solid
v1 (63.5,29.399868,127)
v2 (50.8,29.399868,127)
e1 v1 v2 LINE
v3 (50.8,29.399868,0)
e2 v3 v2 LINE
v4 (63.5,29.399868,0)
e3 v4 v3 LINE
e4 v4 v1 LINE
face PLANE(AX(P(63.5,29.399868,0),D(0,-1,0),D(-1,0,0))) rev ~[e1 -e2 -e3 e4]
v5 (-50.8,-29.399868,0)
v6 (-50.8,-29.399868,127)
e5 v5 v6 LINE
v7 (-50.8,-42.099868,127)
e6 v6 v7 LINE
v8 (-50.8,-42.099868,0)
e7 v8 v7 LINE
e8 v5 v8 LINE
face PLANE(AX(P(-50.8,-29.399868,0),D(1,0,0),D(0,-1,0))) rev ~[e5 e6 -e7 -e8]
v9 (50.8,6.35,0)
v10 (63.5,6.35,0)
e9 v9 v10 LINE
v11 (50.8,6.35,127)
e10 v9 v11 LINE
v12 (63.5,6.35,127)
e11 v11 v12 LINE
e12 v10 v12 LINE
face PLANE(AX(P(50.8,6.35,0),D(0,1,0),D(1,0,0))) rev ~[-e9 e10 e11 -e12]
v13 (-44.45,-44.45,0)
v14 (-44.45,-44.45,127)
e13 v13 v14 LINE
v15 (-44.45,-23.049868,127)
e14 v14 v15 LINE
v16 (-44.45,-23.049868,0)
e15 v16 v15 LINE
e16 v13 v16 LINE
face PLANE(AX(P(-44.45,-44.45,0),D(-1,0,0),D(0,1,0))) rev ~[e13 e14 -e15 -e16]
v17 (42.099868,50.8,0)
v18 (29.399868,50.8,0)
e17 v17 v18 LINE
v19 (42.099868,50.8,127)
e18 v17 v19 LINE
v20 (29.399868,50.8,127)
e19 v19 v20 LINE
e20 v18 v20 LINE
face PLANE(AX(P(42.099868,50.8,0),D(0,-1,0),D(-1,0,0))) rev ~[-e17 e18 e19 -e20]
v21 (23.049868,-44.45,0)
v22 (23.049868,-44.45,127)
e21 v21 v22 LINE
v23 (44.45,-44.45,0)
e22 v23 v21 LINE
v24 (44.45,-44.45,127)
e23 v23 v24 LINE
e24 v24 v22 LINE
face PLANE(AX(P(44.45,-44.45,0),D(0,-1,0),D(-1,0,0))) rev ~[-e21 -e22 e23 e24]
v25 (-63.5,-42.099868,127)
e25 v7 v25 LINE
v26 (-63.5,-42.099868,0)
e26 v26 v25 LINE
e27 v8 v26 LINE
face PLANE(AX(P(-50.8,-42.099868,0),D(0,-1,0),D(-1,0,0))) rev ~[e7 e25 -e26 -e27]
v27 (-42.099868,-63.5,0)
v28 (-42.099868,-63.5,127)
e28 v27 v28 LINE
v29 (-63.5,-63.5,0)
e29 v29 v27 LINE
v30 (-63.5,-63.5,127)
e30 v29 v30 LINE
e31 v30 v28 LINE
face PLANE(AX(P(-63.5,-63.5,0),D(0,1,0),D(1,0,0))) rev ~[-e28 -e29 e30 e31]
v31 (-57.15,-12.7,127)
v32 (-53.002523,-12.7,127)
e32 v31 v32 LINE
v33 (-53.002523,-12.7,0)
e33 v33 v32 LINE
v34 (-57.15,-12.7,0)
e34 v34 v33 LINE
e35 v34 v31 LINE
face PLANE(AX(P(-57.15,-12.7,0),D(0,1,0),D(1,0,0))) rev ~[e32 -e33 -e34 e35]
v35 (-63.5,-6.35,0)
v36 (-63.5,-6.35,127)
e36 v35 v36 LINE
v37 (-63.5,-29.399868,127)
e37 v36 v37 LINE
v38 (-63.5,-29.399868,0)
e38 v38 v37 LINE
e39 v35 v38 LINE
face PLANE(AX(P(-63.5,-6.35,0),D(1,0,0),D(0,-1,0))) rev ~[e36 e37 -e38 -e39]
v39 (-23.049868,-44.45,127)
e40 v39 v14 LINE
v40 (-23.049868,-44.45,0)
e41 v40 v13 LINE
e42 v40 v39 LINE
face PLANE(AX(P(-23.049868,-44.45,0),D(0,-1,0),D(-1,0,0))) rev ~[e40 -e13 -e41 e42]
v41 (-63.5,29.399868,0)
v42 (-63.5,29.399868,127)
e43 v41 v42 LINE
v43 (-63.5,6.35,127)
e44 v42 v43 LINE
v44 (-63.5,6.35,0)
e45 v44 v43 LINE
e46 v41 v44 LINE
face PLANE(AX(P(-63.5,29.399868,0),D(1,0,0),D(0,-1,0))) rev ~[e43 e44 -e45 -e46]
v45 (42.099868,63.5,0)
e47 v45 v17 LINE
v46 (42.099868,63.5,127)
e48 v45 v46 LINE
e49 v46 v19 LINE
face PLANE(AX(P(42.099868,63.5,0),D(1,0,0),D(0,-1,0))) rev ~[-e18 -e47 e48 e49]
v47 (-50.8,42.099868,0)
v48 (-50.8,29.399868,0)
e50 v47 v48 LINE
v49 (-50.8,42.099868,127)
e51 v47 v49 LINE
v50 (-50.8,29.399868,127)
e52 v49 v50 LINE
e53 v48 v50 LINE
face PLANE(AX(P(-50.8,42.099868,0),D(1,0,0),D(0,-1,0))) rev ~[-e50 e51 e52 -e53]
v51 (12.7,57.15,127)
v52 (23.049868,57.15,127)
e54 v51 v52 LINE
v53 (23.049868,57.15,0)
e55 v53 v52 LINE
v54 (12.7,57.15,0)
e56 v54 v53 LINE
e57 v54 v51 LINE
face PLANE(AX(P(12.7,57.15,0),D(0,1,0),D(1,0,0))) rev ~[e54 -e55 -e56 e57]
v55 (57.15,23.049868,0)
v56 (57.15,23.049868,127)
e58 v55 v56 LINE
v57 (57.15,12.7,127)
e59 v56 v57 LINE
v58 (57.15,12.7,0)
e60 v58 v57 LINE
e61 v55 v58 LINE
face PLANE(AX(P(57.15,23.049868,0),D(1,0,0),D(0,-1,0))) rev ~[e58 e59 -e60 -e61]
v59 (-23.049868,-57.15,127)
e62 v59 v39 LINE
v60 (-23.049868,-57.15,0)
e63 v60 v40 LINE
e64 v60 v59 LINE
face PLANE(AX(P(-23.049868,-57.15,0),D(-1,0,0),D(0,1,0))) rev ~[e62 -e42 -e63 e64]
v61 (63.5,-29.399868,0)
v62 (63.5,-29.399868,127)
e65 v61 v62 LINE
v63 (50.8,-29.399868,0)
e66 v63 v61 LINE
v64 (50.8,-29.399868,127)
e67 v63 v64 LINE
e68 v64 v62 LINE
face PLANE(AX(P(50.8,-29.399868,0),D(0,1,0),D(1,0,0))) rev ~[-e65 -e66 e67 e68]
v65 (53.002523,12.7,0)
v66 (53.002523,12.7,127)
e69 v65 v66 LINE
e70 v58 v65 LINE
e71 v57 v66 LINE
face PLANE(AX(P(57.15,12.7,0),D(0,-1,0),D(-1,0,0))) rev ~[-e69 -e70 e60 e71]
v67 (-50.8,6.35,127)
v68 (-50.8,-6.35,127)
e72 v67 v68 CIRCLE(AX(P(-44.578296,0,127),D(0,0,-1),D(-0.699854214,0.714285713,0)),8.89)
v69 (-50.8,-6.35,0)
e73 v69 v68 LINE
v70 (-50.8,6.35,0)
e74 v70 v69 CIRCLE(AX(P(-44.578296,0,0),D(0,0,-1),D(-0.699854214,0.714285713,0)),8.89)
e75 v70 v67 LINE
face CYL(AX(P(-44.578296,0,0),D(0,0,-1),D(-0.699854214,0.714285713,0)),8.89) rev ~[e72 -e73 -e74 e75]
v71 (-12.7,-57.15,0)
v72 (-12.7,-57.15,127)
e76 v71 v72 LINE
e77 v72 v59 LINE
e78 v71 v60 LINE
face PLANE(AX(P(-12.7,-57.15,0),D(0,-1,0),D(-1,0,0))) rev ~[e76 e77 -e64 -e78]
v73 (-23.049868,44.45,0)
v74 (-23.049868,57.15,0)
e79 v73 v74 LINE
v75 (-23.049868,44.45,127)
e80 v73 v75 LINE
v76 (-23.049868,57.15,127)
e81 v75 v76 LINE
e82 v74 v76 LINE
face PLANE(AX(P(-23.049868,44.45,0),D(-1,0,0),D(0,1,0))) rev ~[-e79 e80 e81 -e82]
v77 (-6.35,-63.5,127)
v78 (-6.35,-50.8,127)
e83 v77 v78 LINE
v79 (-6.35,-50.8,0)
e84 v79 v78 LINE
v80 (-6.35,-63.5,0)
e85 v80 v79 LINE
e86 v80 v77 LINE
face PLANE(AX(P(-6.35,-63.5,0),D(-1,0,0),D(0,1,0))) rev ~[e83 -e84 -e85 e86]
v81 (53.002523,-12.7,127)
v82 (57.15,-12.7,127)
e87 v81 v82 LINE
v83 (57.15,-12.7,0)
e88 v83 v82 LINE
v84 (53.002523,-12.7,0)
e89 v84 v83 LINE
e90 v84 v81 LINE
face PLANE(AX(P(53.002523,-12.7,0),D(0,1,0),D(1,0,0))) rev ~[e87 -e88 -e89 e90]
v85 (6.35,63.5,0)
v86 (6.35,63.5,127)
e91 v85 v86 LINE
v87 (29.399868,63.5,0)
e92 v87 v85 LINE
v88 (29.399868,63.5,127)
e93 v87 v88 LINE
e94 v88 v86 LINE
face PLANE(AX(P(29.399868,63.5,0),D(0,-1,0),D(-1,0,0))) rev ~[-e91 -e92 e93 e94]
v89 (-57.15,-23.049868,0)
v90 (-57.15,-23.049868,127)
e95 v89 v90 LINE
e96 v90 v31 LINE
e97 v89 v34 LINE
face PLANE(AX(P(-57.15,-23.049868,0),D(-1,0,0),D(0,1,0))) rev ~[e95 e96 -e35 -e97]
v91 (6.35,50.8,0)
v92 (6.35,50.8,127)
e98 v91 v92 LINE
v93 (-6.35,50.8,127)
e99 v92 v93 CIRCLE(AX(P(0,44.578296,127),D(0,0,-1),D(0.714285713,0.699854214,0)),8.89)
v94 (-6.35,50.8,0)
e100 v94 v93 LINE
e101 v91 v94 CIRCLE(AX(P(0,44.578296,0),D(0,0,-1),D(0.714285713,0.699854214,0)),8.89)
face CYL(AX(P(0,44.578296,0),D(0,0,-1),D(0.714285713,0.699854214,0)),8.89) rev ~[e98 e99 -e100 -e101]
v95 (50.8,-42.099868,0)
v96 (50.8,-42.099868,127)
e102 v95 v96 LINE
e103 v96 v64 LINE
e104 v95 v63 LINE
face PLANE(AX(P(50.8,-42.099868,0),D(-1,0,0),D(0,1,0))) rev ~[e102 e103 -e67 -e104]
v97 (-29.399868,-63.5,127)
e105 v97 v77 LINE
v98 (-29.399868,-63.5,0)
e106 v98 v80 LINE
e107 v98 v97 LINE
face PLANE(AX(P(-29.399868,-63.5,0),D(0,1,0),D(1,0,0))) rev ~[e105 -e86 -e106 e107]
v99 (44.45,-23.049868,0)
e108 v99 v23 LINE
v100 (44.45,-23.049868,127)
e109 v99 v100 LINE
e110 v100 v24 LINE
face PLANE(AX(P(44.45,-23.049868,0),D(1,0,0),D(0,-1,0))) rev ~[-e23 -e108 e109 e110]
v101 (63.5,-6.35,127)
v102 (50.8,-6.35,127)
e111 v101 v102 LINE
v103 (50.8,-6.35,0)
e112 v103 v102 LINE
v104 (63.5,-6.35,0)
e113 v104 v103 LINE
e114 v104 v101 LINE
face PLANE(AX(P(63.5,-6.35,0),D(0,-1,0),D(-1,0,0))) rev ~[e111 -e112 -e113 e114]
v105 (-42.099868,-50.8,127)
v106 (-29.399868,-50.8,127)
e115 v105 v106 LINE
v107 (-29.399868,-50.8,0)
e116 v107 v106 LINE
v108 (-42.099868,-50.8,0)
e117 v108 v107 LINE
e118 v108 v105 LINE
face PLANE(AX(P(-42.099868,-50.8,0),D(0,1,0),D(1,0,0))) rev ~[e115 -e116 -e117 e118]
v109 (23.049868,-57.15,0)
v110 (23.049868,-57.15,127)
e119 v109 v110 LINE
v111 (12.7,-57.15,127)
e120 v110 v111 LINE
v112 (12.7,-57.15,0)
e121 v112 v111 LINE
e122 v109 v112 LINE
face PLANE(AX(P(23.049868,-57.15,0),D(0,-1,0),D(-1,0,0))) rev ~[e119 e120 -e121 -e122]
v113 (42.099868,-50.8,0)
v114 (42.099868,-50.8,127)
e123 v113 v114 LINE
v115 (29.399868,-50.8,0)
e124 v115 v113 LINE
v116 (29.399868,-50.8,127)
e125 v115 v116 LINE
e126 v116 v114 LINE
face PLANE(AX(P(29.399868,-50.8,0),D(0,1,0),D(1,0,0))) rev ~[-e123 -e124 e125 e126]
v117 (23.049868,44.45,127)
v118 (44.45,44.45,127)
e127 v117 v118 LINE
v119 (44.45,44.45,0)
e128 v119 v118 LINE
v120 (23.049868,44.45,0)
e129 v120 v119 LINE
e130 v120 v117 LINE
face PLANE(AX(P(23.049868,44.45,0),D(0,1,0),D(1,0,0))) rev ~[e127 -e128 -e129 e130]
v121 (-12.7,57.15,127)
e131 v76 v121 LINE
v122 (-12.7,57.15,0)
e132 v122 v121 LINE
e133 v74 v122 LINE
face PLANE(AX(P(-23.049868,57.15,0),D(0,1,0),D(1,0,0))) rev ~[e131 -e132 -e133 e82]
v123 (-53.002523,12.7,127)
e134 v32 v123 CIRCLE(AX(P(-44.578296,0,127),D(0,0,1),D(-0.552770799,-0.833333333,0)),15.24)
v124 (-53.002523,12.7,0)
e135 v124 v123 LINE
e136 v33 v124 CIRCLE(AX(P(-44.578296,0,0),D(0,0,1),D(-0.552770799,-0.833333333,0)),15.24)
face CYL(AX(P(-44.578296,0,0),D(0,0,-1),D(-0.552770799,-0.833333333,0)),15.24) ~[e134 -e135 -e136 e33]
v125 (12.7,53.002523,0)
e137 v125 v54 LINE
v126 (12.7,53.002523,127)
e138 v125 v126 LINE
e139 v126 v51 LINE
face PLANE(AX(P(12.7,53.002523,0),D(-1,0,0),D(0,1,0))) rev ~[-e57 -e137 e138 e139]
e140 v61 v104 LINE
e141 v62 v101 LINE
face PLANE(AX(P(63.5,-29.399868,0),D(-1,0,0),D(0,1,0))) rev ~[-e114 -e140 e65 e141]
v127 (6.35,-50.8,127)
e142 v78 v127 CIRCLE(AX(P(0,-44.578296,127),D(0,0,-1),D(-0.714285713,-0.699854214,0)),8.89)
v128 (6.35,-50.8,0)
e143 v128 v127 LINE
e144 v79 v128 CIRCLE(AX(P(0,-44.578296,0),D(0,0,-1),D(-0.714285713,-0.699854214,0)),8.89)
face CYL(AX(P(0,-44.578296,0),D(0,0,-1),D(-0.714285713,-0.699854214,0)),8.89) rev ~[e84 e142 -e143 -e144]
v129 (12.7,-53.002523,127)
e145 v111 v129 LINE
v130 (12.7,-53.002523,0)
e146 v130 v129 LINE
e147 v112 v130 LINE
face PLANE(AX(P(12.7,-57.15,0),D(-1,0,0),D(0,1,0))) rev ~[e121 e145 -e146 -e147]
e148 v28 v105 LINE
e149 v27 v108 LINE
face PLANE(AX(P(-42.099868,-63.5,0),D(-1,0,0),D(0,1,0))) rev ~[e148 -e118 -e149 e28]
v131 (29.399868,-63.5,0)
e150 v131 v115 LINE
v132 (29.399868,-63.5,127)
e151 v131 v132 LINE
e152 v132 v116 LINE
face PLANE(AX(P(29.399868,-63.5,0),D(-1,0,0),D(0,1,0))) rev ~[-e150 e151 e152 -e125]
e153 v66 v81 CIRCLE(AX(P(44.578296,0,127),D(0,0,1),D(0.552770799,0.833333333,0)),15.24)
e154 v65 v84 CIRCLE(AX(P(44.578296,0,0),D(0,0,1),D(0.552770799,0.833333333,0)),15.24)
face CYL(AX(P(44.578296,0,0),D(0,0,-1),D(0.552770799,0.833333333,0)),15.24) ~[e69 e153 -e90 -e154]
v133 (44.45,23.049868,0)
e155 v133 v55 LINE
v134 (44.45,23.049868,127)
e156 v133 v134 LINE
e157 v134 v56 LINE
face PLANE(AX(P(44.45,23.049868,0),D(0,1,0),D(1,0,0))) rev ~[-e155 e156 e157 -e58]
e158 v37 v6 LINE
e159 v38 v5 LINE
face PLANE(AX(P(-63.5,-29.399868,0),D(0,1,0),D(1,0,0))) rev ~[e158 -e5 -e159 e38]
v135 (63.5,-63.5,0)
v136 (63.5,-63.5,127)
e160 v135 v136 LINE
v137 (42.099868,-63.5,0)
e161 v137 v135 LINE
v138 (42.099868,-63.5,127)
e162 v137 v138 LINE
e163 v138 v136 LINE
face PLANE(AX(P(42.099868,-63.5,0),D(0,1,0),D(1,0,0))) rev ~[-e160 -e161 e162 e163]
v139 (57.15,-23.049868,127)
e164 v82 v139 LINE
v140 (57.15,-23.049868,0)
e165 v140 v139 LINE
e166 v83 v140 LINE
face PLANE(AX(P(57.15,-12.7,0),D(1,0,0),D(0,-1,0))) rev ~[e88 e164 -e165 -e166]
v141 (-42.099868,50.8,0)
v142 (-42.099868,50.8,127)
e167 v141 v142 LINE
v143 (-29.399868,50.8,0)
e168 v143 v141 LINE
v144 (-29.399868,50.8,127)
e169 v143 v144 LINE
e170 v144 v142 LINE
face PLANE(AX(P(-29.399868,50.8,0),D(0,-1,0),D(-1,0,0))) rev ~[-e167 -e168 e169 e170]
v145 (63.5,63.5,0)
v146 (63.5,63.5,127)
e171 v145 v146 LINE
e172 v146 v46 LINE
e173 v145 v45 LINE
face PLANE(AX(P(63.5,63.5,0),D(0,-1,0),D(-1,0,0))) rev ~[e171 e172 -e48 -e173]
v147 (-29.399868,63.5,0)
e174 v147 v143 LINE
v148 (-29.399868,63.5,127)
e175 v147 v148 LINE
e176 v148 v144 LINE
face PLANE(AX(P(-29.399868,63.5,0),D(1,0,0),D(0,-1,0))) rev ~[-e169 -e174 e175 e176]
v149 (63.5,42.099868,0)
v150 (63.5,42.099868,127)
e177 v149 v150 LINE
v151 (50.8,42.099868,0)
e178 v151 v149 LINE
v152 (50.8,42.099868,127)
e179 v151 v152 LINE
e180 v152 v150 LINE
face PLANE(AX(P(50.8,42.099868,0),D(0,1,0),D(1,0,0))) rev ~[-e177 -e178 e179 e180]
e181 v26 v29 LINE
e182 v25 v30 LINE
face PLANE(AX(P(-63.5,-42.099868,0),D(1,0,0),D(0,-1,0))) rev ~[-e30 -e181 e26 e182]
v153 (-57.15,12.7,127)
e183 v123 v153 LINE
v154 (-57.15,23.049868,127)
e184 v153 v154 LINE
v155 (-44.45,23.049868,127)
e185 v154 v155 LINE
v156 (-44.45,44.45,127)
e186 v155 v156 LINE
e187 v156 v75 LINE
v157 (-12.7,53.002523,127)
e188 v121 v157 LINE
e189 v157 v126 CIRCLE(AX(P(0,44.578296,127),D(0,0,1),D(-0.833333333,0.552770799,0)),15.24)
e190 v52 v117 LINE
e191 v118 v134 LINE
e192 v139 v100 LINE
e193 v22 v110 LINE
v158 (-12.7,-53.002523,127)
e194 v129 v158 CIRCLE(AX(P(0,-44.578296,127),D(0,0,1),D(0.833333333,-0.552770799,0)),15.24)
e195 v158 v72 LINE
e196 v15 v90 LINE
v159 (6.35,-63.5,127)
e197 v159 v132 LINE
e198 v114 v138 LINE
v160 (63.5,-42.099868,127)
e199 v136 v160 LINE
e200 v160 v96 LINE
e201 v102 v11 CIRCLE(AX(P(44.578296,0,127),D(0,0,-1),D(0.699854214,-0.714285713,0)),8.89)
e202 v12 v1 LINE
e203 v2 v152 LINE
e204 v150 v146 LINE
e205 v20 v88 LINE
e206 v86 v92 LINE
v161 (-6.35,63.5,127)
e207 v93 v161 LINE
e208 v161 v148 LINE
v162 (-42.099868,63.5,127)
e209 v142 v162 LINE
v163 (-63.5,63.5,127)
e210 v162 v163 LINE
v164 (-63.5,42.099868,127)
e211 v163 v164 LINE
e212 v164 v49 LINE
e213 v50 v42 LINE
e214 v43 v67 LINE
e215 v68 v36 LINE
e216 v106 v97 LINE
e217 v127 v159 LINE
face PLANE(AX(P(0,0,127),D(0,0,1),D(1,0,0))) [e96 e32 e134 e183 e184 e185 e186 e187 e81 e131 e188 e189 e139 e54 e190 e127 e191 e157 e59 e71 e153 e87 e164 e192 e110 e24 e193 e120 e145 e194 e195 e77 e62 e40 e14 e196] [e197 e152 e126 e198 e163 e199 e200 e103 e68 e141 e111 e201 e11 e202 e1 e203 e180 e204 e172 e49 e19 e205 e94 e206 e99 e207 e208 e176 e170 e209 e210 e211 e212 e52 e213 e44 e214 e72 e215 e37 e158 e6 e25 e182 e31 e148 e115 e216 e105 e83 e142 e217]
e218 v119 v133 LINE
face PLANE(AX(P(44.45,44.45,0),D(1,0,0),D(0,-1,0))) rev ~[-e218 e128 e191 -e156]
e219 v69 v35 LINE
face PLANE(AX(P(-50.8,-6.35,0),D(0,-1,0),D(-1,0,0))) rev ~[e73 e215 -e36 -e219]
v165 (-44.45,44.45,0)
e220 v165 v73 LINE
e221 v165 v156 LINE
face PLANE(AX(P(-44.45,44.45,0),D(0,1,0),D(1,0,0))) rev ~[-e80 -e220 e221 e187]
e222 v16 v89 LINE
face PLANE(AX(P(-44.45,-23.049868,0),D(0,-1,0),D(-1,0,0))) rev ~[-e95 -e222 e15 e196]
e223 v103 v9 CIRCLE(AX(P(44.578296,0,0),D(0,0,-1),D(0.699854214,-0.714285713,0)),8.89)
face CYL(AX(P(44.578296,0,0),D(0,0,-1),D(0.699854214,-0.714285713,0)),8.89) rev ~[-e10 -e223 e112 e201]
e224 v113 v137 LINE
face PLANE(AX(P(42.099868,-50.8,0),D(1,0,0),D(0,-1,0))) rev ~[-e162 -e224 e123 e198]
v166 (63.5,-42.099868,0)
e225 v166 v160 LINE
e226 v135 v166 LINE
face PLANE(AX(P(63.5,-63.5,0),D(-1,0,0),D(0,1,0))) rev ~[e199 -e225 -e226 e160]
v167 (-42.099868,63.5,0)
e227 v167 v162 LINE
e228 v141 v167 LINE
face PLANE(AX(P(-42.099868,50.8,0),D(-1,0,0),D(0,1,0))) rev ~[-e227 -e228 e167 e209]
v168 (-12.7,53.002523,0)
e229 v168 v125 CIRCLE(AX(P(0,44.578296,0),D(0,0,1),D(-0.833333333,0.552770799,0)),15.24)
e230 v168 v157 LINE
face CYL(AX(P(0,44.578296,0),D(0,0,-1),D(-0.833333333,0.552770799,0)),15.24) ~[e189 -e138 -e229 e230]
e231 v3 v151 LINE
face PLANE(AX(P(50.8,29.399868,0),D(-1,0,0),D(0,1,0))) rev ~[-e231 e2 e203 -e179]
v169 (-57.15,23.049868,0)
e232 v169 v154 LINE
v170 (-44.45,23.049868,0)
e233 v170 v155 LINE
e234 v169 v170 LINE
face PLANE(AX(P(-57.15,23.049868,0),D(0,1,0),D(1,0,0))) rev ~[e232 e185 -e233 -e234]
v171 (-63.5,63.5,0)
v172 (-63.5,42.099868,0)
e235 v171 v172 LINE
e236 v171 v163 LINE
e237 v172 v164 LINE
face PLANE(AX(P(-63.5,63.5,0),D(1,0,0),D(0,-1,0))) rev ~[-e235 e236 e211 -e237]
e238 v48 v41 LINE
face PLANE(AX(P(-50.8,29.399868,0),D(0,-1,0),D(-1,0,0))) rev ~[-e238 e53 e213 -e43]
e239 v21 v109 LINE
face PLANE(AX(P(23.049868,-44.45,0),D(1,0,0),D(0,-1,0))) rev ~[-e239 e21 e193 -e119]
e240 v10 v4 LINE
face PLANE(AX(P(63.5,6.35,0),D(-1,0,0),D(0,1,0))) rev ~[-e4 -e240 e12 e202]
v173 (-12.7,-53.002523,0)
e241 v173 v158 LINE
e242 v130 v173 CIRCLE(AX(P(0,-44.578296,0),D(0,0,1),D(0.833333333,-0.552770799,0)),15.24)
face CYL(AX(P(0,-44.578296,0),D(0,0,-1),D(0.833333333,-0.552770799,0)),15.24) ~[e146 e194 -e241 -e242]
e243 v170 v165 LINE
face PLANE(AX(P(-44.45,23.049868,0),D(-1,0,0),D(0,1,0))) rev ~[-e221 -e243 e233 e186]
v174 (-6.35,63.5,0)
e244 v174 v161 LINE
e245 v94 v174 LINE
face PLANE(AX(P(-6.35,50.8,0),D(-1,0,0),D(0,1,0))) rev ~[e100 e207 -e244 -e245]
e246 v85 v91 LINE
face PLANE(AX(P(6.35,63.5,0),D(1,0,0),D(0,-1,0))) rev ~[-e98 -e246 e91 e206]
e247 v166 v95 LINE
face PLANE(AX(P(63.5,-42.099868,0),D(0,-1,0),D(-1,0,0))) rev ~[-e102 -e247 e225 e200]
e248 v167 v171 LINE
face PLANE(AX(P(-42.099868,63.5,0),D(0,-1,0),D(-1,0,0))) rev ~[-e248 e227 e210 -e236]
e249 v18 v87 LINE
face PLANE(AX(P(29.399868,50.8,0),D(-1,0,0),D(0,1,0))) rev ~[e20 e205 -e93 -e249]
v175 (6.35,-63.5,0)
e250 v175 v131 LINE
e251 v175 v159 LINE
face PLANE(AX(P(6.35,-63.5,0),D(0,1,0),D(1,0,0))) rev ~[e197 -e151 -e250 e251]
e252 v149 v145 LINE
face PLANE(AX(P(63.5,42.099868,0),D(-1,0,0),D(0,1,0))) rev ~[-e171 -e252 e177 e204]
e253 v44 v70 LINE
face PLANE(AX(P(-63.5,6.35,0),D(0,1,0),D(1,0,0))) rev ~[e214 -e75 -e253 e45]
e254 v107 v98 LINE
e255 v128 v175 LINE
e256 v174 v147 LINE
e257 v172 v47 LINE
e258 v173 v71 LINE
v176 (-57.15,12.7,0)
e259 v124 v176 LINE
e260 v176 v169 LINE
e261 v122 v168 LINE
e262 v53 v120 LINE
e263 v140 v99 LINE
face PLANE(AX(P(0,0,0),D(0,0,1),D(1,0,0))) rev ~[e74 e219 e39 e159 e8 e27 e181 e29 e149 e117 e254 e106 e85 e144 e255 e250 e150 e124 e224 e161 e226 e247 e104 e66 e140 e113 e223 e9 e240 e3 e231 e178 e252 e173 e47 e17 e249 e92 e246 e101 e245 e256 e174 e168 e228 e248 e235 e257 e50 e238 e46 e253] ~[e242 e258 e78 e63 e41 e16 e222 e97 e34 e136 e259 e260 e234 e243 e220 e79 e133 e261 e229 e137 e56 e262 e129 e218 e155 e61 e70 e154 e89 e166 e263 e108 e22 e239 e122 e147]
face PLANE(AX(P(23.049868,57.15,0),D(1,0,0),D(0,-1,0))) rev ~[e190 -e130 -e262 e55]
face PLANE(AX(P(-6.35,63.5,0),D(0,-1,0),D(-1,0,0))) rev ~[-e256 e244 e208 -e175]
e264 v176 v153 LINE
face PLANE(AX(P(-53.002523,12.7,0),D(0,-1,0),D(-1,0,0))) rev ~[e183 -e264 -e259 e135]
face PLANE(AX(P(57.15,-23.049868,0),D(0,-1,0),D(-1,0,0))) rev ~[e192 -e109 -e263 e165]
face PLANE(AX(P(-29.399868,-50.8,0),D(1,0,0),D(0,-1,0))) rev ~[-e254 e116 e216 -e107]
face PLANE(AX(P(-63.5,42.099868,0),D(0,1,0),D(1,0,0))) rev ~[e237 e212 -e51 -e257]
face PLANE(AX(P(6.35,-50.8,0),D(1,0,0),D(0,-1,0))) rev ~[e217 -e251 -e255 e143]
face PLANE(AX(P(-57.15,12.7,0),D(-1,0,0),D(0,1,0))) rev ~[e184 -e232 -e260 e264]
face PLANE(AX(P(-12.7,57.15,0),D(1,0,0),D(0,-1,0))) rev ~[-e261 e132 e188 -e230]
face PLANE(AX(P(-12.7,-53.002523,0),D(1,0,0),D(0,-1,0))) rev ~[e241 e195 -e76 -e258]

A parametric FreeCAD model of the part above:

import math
import FreeCAD as App
import Part
import Sketcher
Q = App.Units.Quantity

doc = App.newDocument("Part")
body = doc.addObject("PartDesign::Body", "Body")

# Sketch on XY plane
sketch1 = body.newObject("Sketcher::SketchObject", "Sketch")
sketch1.AttachmentSupport = (doc.getObject("XY_Plane"), [""])
sketch1.MapMode = "FlatFace"
sketch1.addGeometry(Part.LineSegment(App.Vector(-42.1, 63.5, 0), App.Vector(-63.5, 63.5, 0)), False)
sketch1.addGeometry(Part.LineSegment(App.Vector(-63.5, 63.5, 0), App.Vector(-63.5, 42.1, 0)), False)
sketch1.addGeometry(Part.LineSegment(App.Vector(-63.5, 42.1, 0), App.Vector(-50.8, 42.1, 0)), False)
sketch1.addGeometry(Part.LineSegment(App.Vector(-50.8, 42.1, 0), App.Vector(-50.8, 29.4, 0)), False)
sketch1.addGeometry(Part.LineSegment(App.Vector(-50.8, 29.4, 0), App.Vector(-63.5, 29.4, 0)), False)
sketch1.addGeometry(Part.LineSegment(App.Vector(-63.5, 29.4, 0), App.Vector(-63.5, 6.3, 0)), False)
sketch1.addGeometry(Part.LineSegment(App.Vector(-63.5, 6.3, 0), App.Vector(-50.8, 6.3, 0)), False)
sketch1.addGeometry(Part.ArcOfCircle(Part.Circle(App.Vector(-44.6, 0, 0), App.Vector(0, 0, 1), 8.9), math.radians(-134), math.radians(134)), False)
sketch1.addGeometry(Part.LineSegment(App.Vector(-50.8, -6.3, 0), App.Vector(-63.5, -6.3, 0)), False)
sketch1.addGeometry(Part.LineSegment(App.Vector(-63.5, -6.3, 0), App.Vector(-63.5, -29.4, 0)), False)
sketch1.addGeometry(Part.LineSegment(App.Vector(-63.5, -29.4, 0), App.Vector(-50.8, -29.4, 0)), False)
sketch1.addGeometry(Part.LineSegment(App.Vector(-50.8, -29.4, 0), App.Vector(-50.8, -42.1, 0)), False)
sketch1.addGeometry(Part.LineSegment(App.Vector(-50.8, -42.1, 0), App.Vector(-63.5, -42.1, 0)), False)
sketch1.addGeometry(Part.LineSegment(App.Vector(-63.5, -42.1, 0), App.Vector(-63.5, -63.5, 0)), False)
sketch1.addGeometry(Part.LineSegment(App.Vector(-63.5, -63.5, 0), App.Vector(-42.1, -63.5, 0)), False)
sketch1.addGeometry(Part.LineSegment(App.Vector(-42.1, -63.5, 0), App.Vector(-42.1, -50.8, 0)), False)
sketch1.addGeometry(Part.LineSegment(App.Vector(-42.1, -50.8, 0), App.Vector(-29.4, -50.8, 0)), False)
sketch1.addGeometry(Part.LineSegment(App.Vector(-29.4, -50.8, 0), App.Vector(-29.4, -63.5, 0)), False)
sketch1.addGeometry(Part.LineSegment(App.Vector(-29.4, -63.5, 0), App.Vector(-6.3, -63.5, 0)), False)
sketch1.addGeometry(Part.LineSegment(App.Vector(-6.3, -63.5, 0), App.Vector(-6.3, -50.8, 0)), False)
sketch1.addGeometry(Part.ArcOfCircle(Part.Circle(App.Vector(0, -44.6, 0), App.Vector(0, 0, 1), 8.9), math.radians(-44), math.radians(224)), False)
sketch1.addGeometry(Part.LineSegment(App.Vector(6.3, -50.8, 0), App.Vector(6.3, -63.5, 0)), False)
sketch1.addGeometry(Part.LineSegment(App.Vector(6.3, -63.5, 0), App.Vector(29.4, -63.5, 0)), False)
sketch1.addGeometry(Part.LineSegment(App.Vector(29.4, -63.5, 0), App.Vector(29.4, -50.8, 0)), False)
sketch1.addGeometry(Part.LineSegment(App.Vector(29.4, -50.8, 0), App.Vector(42.1, -50.8, 0)), False)
sketch1.addGeometry(Part.LineSegment(App.Vector(42.1, -50.8, 0), App.Vector(42.1, -63.5, 0)), False)
sketch1.addGeometry(Part.LineSegment(App.Vector(42.1, -63.5, 0), App.Vector(63.5, -63.5, 0)), False)
sketch1.addGeometry(Part.LineSegment(App.Vector(63.5, -63.5, 0), App.Vector(63.5, -42.1, 0)), False)
sketch1.addGeometry(Part.LineSegment(App.Vector(63.5, -42.1, 0), App.Vector(50.8, -42.1, 0)), False)
sketch1.addGeometry(Part.LineSegment(App.Vector(50.8, -42.1, 0), App.Vector(50.8, -29.4, 0)), False)
sketch1.addGeometry(Part.LineSegment(App.Vector(50.8, -29.4, 0), App.Vector(63.5, -29.4, 0)), False)
sketch1.addGeometry(Part.LineSegment(App.Vector(63.5, -29.4, 0), App.Vector(63.5, -6.3, 0)), False)
sketch1.addGeometry(Part.LineSegment(App.Vector(63.5, -6.3, 0), App.Vector(50.8, -6.3, 0)), False)
sketch1.addGeometry(Part.ArcOfCircle(Part.Circle(App.Vector(44.6, 0, 0), App.Vector(0, 0, 1), 8.9), math.radians(46), math.radians(314)), False)
sketch1.addGeometry(Part.LineSegment(App.Vector(50.8, 6.3, 0), App.Vector(63.5, 6.3, 0)), False)
sketch1.addGeometry(Part.LineSegment(App.Vector(63.5, 6.3, 0), App.Vector(63.5, 29.4, 0)), False)
sketch1.addGeometry(Part.LineSegment(App.Vector(63.5, 29.4, 0), App.Vector(50.8, 29.4, 0)), False)
sketch1.addGeometry(Part.LineSegment(App.Vector(50.8, 29.4, 0), App.Vector(50.8, 42.1, 0)), False)
sketch1.addGeometry(Part.LineSegment(App.Vector(50.8, 42.1, 0), App.Vector(63.5, 42.1, 0)), False)
sketch1.addGeometry(Part.LineSegment(App.Vector(63.5, 42.1, 0), App.Vector(63.5, 63.5, 0)), False)
sketch1.addGeometry(Part.LineSegment(App.Vector(63.5, 63.5, 0), App.Vector(42.1, 63.5, 0)), False)
sketch1.addGeometry(Part.LineSegment(App.Vector(42.1, 63.5, 0), App.Vector(42.1, 50.8, 0)), False)
sketch1.addGeometry(Part.LineSegment(App.Vector(42.1, 50.8, 0), App.Vector(29.4, 50.8, 0)), False)
sketch1.addGeometry(Part.LineSegment(App.Vector(29.4, 50.8, 0), App.Vector(29.4, 63.5, 0)), False)
sketch1.addGeometry(Part.LineSegment(App.Vector(29.4, 63.5, 0), App.Vector(6.3, 63.5, 0)), False)
sketch1.addGeometry(Part.LineSegment(App.Vector(6.3, 63.5, 0), App.Vector(6.3, 50.8, 0)), False)
sketch1.addGeometry(Part.ArcOfCircle(Part.Circle(App.Vector(0, 44.6, 0), App.Vector(0, 0, 1), 8.9), math.radians(136), math.radians(404)), False)
sketch1.addGeometry(Part.LineSegment(App.Vector(-6.3, 50.8, 0), App.Vector(-6.3, 63.5, 0)), False)
sketch1.addGeometry(Part.LineSegment(App.Vector(-6.3, 63.5, 0), App.Vector(-29.4, 63.5, 0)), False)
sketch1.addGeometry(Part.LineSegment(App.Vector(-29.4, 63.5, 0), App.Vector(-29.4, 50.8, 0)), False)
sketch1.addGeometry(Part.LineSegment(App.Vector(-29.4, 50.8, 0), App.Vector(-42.1, 50.8, 0)), False)
sketch1.addGeometry(Part.LineSegment(App.Vector(-42.1, 50.8, 0), App.Vector(-42.1, 63.5, 0)), False)
sketch1.addGeometry(Part.LineSegment(App.Vector(-57.1, 12.7, 0), App.Vector(-57.1, 23, 0)), False)
sketch1.addGeometry(Part.LineSegment(App.Vector(-57.1, 23, 0), App.Vector(-44.5, 23, 0)), False)
sketch1.addGeometry(Part.LineSegment(App.Vector(-44.5, 23, 0), App.Vector(-44.5, 44.5, 0)), False)
sketch1.addGeometry(Part.LineSegment(App.Vector(-44.5, 44.5, 0), App.Vector(-23, 44.5, 0)), False)
sketch1.addGeometry(Part.LineSegment(App.Vector(-23, 44.5, 0), App.Vector(-23, 57.1, 0)), False)
sketch1.addGeometry(Part.LineSegment(App.Vector(-23, 57.1, 0), App.Vector(-12.7, 57.1, 0)), False)
sketch1.addGeometry(Part.LineSegment(App.Vector(-12.7, 57.1, 0), App.Vector(-12.7, 53, 0)), False)
sketch1.addGeometry(Part.ArcOfCircle(Part.Circle(App.Vector(0, 44.6, 0), App.Vector(0, 0, 1), 15.2), math.radians(146), math.radians(394)), False)
sketch1.addGeometry(Part.LineSegment(App.Vector(12.7, 53, 0), App.Vector(12.7, 57.1, 0)), False)
sketch1.addGeometry(Part.LineSegment(App.Vector(12.7, 57.1, 0), App.Vector(23, 57.1, 0)), False)
sketch1.addGeometry(Part.LineSegment(App.Vector(23, 57.1, 0), App.Vector(23, 44.5, 0)), False)
sketch1.addGeometry(Part.LineSegment(App.Vector(23, 44.5, 0), App.Vector(44.5, 44.5, 0)), False)
sketch1.addGeometry(Part.LineSegment(App.Vector(44.5, 44.5, 0), App.Vector(44.5, 23, 0)), False)
sketch1.addGeometry(Part.LineSegment(App.Vector(44.5, 23, 0), App.Vector(57.1, 23, 0)), False)
sketch1.addGeometry(Part.LineSegment(App.Vector(57.1, 23, 0), App.Vector(57.1, 12.7, 0)), False)
sketch1.addGeometry(Part.LineSegment(App.Vector(57.1, 12.7, 0), App.Vector(53, 12.7, 0)), False)
sketch1.addGeometry(Part.ArcOfCircle(Part.Circle(App.Vector(44.6, 0, 0), App.Vector(0, 0, 1), 15.2), math.radians(56), math.radians(304)), False)
sketch1.addGeometry(Part.LineSegment(App.Vector(53, -12.7, 0), App.Vector(57.1, -12.7, 0)), False)
sketch1.addGeometry(Part.LineSegment(App.Vector(57.1, -12.7, 0), App.Vector(57.1, -23, 0)), False)
sketch1.addGeometry(Part.LineSegment(App.Vector(57.1, -23, 0), App.Vector(44.5, -23, 0)), False)
sketch1.addGeometry(Part.LineSegment(App.Vector(44.5, -23, 0), App.Vector(44.5, -44.5, 0)), False)
sketch1.addGeometry(Part.LineSegment(App.Vector(44.5, -44.5, 0), App.Vector(23, -44.5, 0)), False)
sketch1.addGeometry(Part.LineSegment(App.Vector(23, -44.5, 0), App.Vector(23, -57.1, 0)), False)
sketch1.addGeometry(Part.LineSegment(App.Vector(23, -57.1, 0), App.Vector(12.7, -57.1, 0)), False)
sketch1.addGeometry(Part.LineSegment(App.Vector(12.7, -57.1, 0), App.Vector(12.7, -53, 0)), False)
sketch1.addGeometry(Part.ArcOfCircle(Part.Circle(App.Vector(0, -44.6, 0), App.Vector(0, 0, 1), 15.2), math.radians(-34), math.radians(214)), False)
sketch1.addGeometry(Part.LineSegment(App.Vector(-12.7, -53, 0), App.Vector(-12.7, -57.1, 0)), False)
sketch1.addGeometry(Part.LineSegment(App.Vector(-12.7, -57.1, 0), App.Vector(-23, -57.1, 0)), False)
sketch1.addGeometry(Part.LineSegment(App.Vector(-23, -57.1, 0), App.Vector(-23, -44.5, 0)), False)
sketch1.addGeometry(Part.LineSegment(App.Vector(-23, -44.5, 0), App.Vector(-44.5, -44.5, 0)), False)
sketch1.addGeometry(Part.LineSegment(App.Vector(-44.5, -44.5, 0), App.Vector(-44.5, -23, 0)), False)
sketch1.addGeometry(Part.LineSegment(App.Vector(-44.5, -23, 0), App.Vector(-57.1, -23, 0)), False)
sketch1.addGeometry(Part.LineSegment(App.Vector(-57.1, -23, 0), App.Vector(-57.1, -12.7, 0)), False)
sketch1.addGeometry(Part.LineSegment(App.Vector(-57.1, -12.7, 0), App.Vector(-53, -12.7, 0)), False)
sketch1.addGeometry(Part.ArcOfCircle(Part.Circle(App.Vector(-44.6, 0, 0), App.Vector(0, 0, 1), 15.2), math.radians(-124), math.radians(124)), False)
sketch1.addGeometry(Part.LineSegment(App.Vector(-53, 12.7, 0), App.Vector(-57.1, 12.7, 0)), False)
sketch1.addConstraint(Sketcher.Constraint("Coincident", 0, 2, 1, 1))
sketch1.addConstraint(Sketcher.Constraint("Coincident", 1, 2, 2, 1))
sketch1.addConstraint(Sketcher.Constraint("Coincident", 2, 2, 3, 1))
sketch1.addConstraint(Sketcher.Constraint("Coincident", 3, 2, 4, 1))
sketch1.addConstraint(Sketcher.Constraint("Coincident", 4, 2, 5, 1))
sketch1.addConstraint(Sketcher.Constraint("Coincident", 5, 2, 6, 1))
sketch1.addConstraint(Sketcher.Constraint("Coincident", 6, 2, 7, 2))
sketch1.addConstraint(Sketcher.Constraint("Coincident", 7, 1, 8, 1))
sketch1.addConstraint(Sketcher.Constraint("Coincident", 8, 2, 9, 1))
sketch1.addConstraint(Sketcher.Constraint("Coincident", 9, 2, 10, 1))
sketch1.addConstraint(Sketcher.Constraint("Coincident", 10, 2, 11, 1))
sketch1.addConstraint(Sketcher.Constraint("Coincident", 11, 2, 12, 1))
sketch1.addConstraint(Sketcher.Constraint("Coincident", 12, 2, 13, 1))
sketch1.addConstraint(Sketcher.Constraint("Coincident", 13, 2, 14, 1))
sketch1.addConstraint(Sketcher.Constraint("Coincident", 14, 2, 15, 1))
sketch1.addConstraint(Sketcher.Constraint("Coincident", 15, 2, 16, 1))
sketch1.addConstraint(Sketcher.Constraint("Coincident", 16, 2, 17, 1))
sketch1.addConstraint(Sketcher.Constraint("Coincident", 17, 2, 18, 1))
sketch1.addConstraint(Sketcher.Constraint("Coincident", 18, 2, 19, 1))
sketch1.addConstraint(Sketcher.Constraint("Coincident", 19, 2, 20, 2))
sketch1.addConstraint(Sketcher.Constraint("Coincident", 20, 1, 21, 1))
sketch1.addConstraint(Sketcher.Constraint("Coincident", 21, 2, 22, 1))
sketch1.addConstraint(Sketcher.Constraint("Coincident", 22, 2, 23, 1))
sketch1.addConstraint(Sketcher.Constraint("Coincident", 23, 2, 24, 1))
sketch1.addConstraint(Sketcher.Constraint("Coincident", 24, 2, 25, 1))
sketch1.addConstraint(Sketcher.Constraint("Coincident", 25, 2, 26, 1))
sketch1.addConstraint(Sketcher.Constraint("Coincident", 26, 2, 27, 1))
sketch1.addConstraint(Sketcher.Constraint("Coincident", 27, 2, 28, 1))
sketch1.addConstraint(Sketcher.Constraint("Coincident", 28, 2, 29, 1))
sketch1.addConstraint(Sketcher.Constraint("Coincident", 29, 2, 30, 1))
sketch1.addConstraint(Sketcher.Constraint("Coincident", 30, 2, 31, 1))
sketch1.addConstraint(Sketcher.Constraint("Coincident", 31, 2, 32, 1))
sketch1.addConstraint(Sketcher.Constraint("Coincident", 32, 2, 33, 2))
sketch1.addConstraint(Sketcher.Constraint("Coincident", 33, 1, 34, 1))
sketch1.addConstraint(Sketcher.Constraint("Coincident", 34, 2, 35, 1))
sketch1.addConstraint(Sketcher.Constraint("Coincident", 35, 2, 36, 1))
sketch1.addConstraint(Sketcher.Constraint("Coincident", 36, 2, 37, 1))
sketch1.addConstraint(Sketcher.Constraint("Coincident", 37, 2, 38, 1))
sketch1.addConstraint(Sketcher.Constraint("Coincident", 38, 2, 39, 1))
sketch1.addConstraint(Sketcher.Constraint("Coincident", 39, 2, 40, 1))
sketch1.addConstraint(Sketcher.Constraint("Coincident", 40, 2, 41, 1))
sketch1.addConstraint(Sketcher.Constraint("Coincident", 41, 2, 42, 1))
sketch1.addConstraint(Sketcher.Constraint("Coincident", 42, 2, 43, 1))
sketch1.addConstraint(Sketcher.Constraint("Coincident", 43, 2, 44, 1))
sketch1.addConstraint(Sketcher.Constraint("Coincident", 44, 2, 45, 1))
sketch1.addConstraint(Sketcher.Constraint("Coincident", 45, 2, 46, 2))
sketch1.addConstraint(Sketcher.Constraint("Coincident", 46, 1, 47, 1))
sketch1.addConstraint(Sketcher.Constraint("Coincident", 47, 2, 48, 1))
sketch1.addConstraint(Sketcher.Constraint("Coincident", 48, 2, 49, 1))
sketch1.addConstraint(Sketcher.Constraint("Coincident", 49, 2, 50, 1))
sketch1.addConstraint(Sketcher.Constraint("Coincident", 50, 2, 51, 1))
sketch1.addConstraint(Sketcher.Constraint("Coincident", 51, 2, 0, 1))
sketch1.addConstraint(Sketcher.Constraint("Coincident", 52, 2, 53, 1))
sketch1.addConstraint(Sketcher.Constraint("Coincident", 53, 2, 54, 1))
sketch1.addConstraint(Sketcher.Constraint("Coincident", 54, 2, 55, 1))
sketch1.addConstraint(Sketcher.Constraint("Coincident", 55, 2, 56, 1))
sketch1.addConstraint(Sketcher.Constraint("Coincident", 56, 2, 57, 1))
sketch1.addConstraint(Sketcher.Constraint("Coincident", 57, 2, 58, 1))
sketch1.addConstraint(Sketcher.Constraint("Coincident", 58, 2, 59, 1))
sketch1.addConstraint(Sketcher.Constraint("Coincident", 59, 2, 60, 1))
sketch1.addConstraint(Sketcher.Constraint("Coincident", 60, 2, 61, 1))
sketch1.addConstraint(Sketcher.Constraint("Coincident", 61, 2, 62, 1))
sketch1.addConstraint(Sketcher.Constraint("Coincident", 62, 2, 63, 1))
sketch1.addConstraint(Sketcher.Constraint("Coincident", 63, 2, 64, 1))
sketch1.addConstraint(Sketcher.Constraint("Coincident", 64, 2, 65, 1))
sketch1.addConstraint(Sketcher.Constraint("Coincident", 65, 2, 66, 1))
sketch1.addConstraint(Sketcher.Constraint("Coincident", 66, 2, 67, 1))
sketch1.addConstraint(Sketcher.Constraint("Coincident", 67, 2, 68, 1))
sketch1.addConstraint(Sketcher.Constraint("Coincident", 68, 2, 69, 1))
sketch1.addConstraint(Sketcher.Constraint("Coincident", 69, 2, 70, 1))
sketch1.addConstraint(Sketcher.Constraint("Coincident", 70, 2, 71, 1))
sketch1.addConstraint(Sketcher.Constraint("Coincident", 71, 2, 72, 1))
sketch1.addConstraint(Sketcher.Constraint("Coincident", 72, 2, 73, 1))
sketch1.addConstraint(Sketcher.Constraint("Coincident", 73, 2, 74, 1))
sketch1.addConstraint(Sketcher.Constraint("Coincident", 74, 2, 75, 1))
sketch1.addConstraint(Sketcher.Constraint("Coincident", 75, 2, 76, 1))
sketch1.addConstraint(Sketcher.Constraint("Coincident", 76, 2, 77, 1))
sketch1.addConstraint(Sketcher.Constraint("Coincident", 77, 2, 78, 1))
sketch1.addConstraint(Sketcher.Constraint("Coincident", 78, 2, 79, 1))
sketch1.addConstraint(Sketcher.Constraint("Coincident", 79, 2, 80, 1))
sketch1.addConstraint(Sketcher.Constraint("Coincident", 80, 2, 81, 1))
sketch1.addConstraint(Sketcher.Constraint("Coincident", 81, 2, 82, 1))
sketch1.addConstraint(Sketcher.Constraint("Coincident", 82, 2, 83, 1))
sketch1.addConstraint(Sketcher.Constraint("Coincident", 83, 2, 84, 1))
sketch1.addConstraint(Sketcher.Constraint("Coincident", 84, 2, 85, 1))
sketch1.addConstraint(Sketcher.Constraint("Coincident", 85, 2, 86, 1))
sketch1.addConstraint(Sketcher.Constraint("Coincident", 86, 2, 87, 1))
sketch1.addConstraint(Sketcher.Constraint("Coincident", 87, 2, 52, 1))
sketch1.addConstraint(Sketcher.Constraint("Horizontal", 0))
sketch1.addConstraint(Sketcher.Constraint("Vertical", 1))
sketch1.addConstraint(Sketcher.Constraint("Horizontal", 2))
sketch1.addConstraint(Sketcher.Constraint("Vertical", 3))
sketch1.addConstraint(Sketcher.Constraint("Horizontal", 4))
sketch1.addConstraint(Sketcher.Constraint("Vertical", 5))
sketch1.addConstraint(Sketcher.Constraint("Horizontal", 6))
sketch1.addConstraint(Sketcher.Constraint("Horizontal", 8))
sketch1.addConstraint(Sketcher.Constraint("Vertical", 9))
sketch1.addConstraint(Sketcher.Constraint("Horizontal", 10))
sketch1.addConstraint(Sketcher.Constraint("Vertical", 11))
sketch1.addConstraint(Sketcher.Constraint("Horizontal", 12))
sketch1.addConstraint(Sketcher.Constraint("Vertical", 13))
sketch1.addConstraint(Sketcher.Constraint("Horizontal", 14))
sketch1.addConstraint(Sketcher.Constraint("Vertical", 15))
sketch1.addConstraint(Sketcher.Constraint("Horizontal", 16))
sketch1.addConstraint(Sketcher.Constraint("Vertical", 17))
sketch1.addConstraint(Sketcher.Constraint("Horizontal", 18))
sketch1.addConstraint(Sketcher.Constraint("Vertical", 19))
sketch1.addConstraint(Sketcher.Constraint("Vertical", 21))
sketch1.addConstraint(Sketcher.Constraint("Horizontal", 22))
sketch1.addConstraint(Sketcher.Constraint("Vertical", 23))
sketch1.addConstraint(Sketcher.Constraint("Horizontal", 24))
sketch1.addConstraint(Sketcher.Constraint("Vertical", 25))
sketch1.addConstraint(Sketcher.Constraint("Horizontal", 26))
sketch1.addConstraint(Sketcher.Constraint("Vertical", 27))
sketch1.addConstraint(Sketcher.Constraint("Horizontal", 28))
sketch1.addConstraint(Sketcher.Constraint("Vertical", 29))
sketch1.addConstraint(Sketcher.Constraint("Horizontal", 30))
sketch1.addConstraint(Sketcher.Constraint("Vertical", 31))
sketch1.addConstraint(Sketcher.Constraint("Horizontal", 32))
sketch1.addConstraint(Sketcher.Constraint("Horizontal", 34))
sketch1.addConstraint(Sketcher.Constraint("Vertical", 35))
sketch1.addConstraint(Sketcher.Constraint("Horizontal", 36))
sketch1.addConstraint(Sketcher.Constraint("Vertical", 37))
sketch1.addConstraint(Sketcher.Constraint("Horizontal", 38))
sketch1.addConstraint(Sketcher.Constraint("Vertical", 39))
sketch1.addConstraint(Sketcher.Constraint("Horizontal", 40))
sketch1.addConstraint(Sketcher.Constraint("Vertical", 41))
sketch1.addConstraint(Sketcher.Constraint("Horizontal", 42))
sketch1.addConstraint(Sketcher.Constraint("Vertical", 43))
sketch1.addConstraint(Sketcher.Constraint("Horizontal", 44))
sketch1.addConstraint(Sketcher.Constraint("Vertical", 45))
sketch1.addConstraint(Sketcher.Constraint("Vertical", 47))
sketch1.addConstraint(Sketcher.Constraint("Horizontal", 48))
sketch1.addConstraint(Sketcher.Constraint("Vertical", 49))
sketch1.addConstraint(Sketcher.Constraint("Horizontal", 50))
sketch1.addConstraint(Sketcher.Constraint("Vertical", 51))
sketch1.addConstraint(Sketcher.Constraint("Vertical", 52))
sketch1.addConstraint(Sketcher.Constraint("Horizontal", 53))
sketch1.addConstraint(Sketcher.Constraint("Vertical", 54))
sketch1.addConstraint(Sketcher.Constraint("Horizontal", 55))
sketch1.addConstraint(Sketcher.Constraint("Vertical", 56))
sketch1.addConstraint(Sketcher.Constraint("Horizontal", 57))
sketch1.addConstraint(Sketcher.Constraint("Vertical", 58))
sketch1.addConstraint(Sketcher.Constraint("Vertical", 60))
sketch1.addConstraint(Sketcher.Constraint("Horizontal", 61))
sketch1.addConstraint(Sketcher.Constraint("Vertical", 62))
sketch1.addConstraint(Sketcher.Constraint("Horizontal", 63))
sketch1.addConstraint(Sketcher.Constraint("Vertical", 64))
sketch1.addConstraint(Sketcher.Constraint("Horizontal", 65))
sketch1.addConstraint(Sketcher.Constraint("Vertical", 66))
sketch1.addConstraint(Sketcher.Constraint("Horizontal", 67))
sketch1.addConstraint(Sketcher.Constraint("Horizontal", 69))
sketch1.addConstraint(Sketcher.Constraint("Vertical", 70))
sketch1.addConstraint(Sketcher.Constraint("Horizontal", 71))
sketch1.addConstraint(Sketcher.Constraint("Vertical", 72))
sketch1.addConstraint(Sketcher.Constraint("Horizontal", 73))
sketch1.addConstraint(Sketcher.Constraint("Vertical", 74))
sketch1.addConstraint(Sketcher.Constraint("Horizontal", 75))
sketch1.addConstraint(Sketcher.Constraint("Vertical", 76))
sketch1.addConstraint(Sketcher.Constraint("Vertical", 78))
sketch1.addConstraint(Sketcher.Constraint("Horizontal", 79))
sketch1.addConstraint(Sketcher.Constraint("Vertical", 80))
sketch1.addConstraint(Sketcher.Constraint("Horizontal", 81))
sketch1.addConstraint(Sketcher.Constraint("Vertical", 82))
sketch1.addConstraint(Sketcher.Constraint("Horizontal", 83))
sketch1.addConstraint(Sketcher.Constraint("Vertical", 84))
sketch1.addConstraint(Sketcher.Constraint("Horizontal", 85))
sketch1.addConstraint(Sketcher.Constraint("Horizontal", 87))
sketch1.addConstraint(Sketcher.Constraint("Coincident", 59, 3, 46, 3))
sketch1.addConstraint(Sketcher.Constraint("Coincident", 68, 3, 33, 3))
sketch1.addConstraint(Sketcher.Constraint("Coincident", 77, 3, 20, 3))
sketch1.addConstraint(Sketcher.Constraint("Coincident", 86, 3, 7, 3))
sketch1.addConstraint(Sketcher.Constraint("Equal", 7, 20))
sketch1.addConstraint(Sketcher.Constraint("Equal", 20, 33))
sketch1.addConstraint(Sketcher.Constraint("Equal", 33, 46))
sketch1.addConstraint(Sketcher.Constraint("Equal", 59, 68))
sketch1.addConstraint(Sketcher.Constraint("Equal", 68, 77))
sketch1.addConstraint(Sketcher.Constraint("Equal", 77, 86))
sketch1.addConstraint(Sketcher.Constraint("Symmetric", 7, 3, 33, 3, -1, 1))
sketch1.addConstraint(Sketcher.Constraint("Symmetric", 20, 3, 46, 3, -1, 1))
sketch1.addConstraint(Sketcher.Constraint("Symmetric", 0, 2, 26, 2, -1, 1))
sketch1.addConstraint(Sketcher.Constraint("Symmetric", 2, 2, 28, 2, -1, 1))
sketch1.addConstraint(Sketcher.Constraint("Symmetric", 4, 2, 30, 2, -1, 1))
sketch1.addConstraint(Sketcher.Constraint("Symmetric", 8, 2, 34, 2, -1, 1))
sketch1.addConstraint(Sketcher.Constraint("Symmetric", 10, 2, 36, 2, -1, 1))
sketch1.addConstraint(Sketcher.Constraint("Symmetric", 12, 2, 38, 2, -1, 1))
sketch1.addConstraint(Sketcher.Constraint("Symmetric", 14, 2, 40, 2, -1, 1))
sketch1.addConstraint(Sketcher.Constraint("Symmetric", 16, 2, 42, 2, -1, 1))
sketch1.addConstraint(Sketcher.Constraint("Symmetric", 18, 2, 44, 2, -1, 1))
sketch1.addConstraint(Sketcher.Constraint("Symmetric", 21, 2, 47, 2, -1, 1))
sketch1.addConstraint(Sketcher.Constraint("Symmetric", 23, 2, 49, 2, -1, 1))
sketch1.addConstraint(Sketcher.Constraint("Symmetric", 52, 2, 70, 2, -1, 1))
sketch1.addConstraint(Sketcher.Constraint("Symmetric", 54, 2, 72, 2, -1, 1))
sketch1.addConstraint(Sketcher.Constraint("Symmetric", 56, 2, 74, 2, -1, 1))
sketch1.addConstraint(Sketcher.Constraint("Symmetric", 60, 2, 78, 2, -1, 1))
sketch1.addConstraint(Sketcher.Constraint("Symmetric", 62, 2, 80, 2, -1, 1))
sketch1.addConstraint(Sketcher.Constraint("Symmetric", 64, 2, 82, 2, -1, 1))
sketch1.addConstraint(Sketcher.Constraint("Symmetric", 66, 2, 84, 2, -1, 1))
sketch1.addConstraint(Sketcher.Constraint("Symmetric", 19, 2, 20, 1, -2))
sketch1.addConstraint(Sketcher.Constraint("Symmetric", 17, 2, 22, 2, -2))
sketch1.addConstraint(Sketcher.Constraint("Symmetric", 15, 2, 24, 2, -2))
sketch1.addConstraint(Sketcher.Constraint("Symmetric", 13, 2, 26, 2, -2))
sketch1.addConstraint(Sketcher.Constraint("Symmetric", 11, 2, 28, 2, -2))
sketch1.addConstraint(Sketcher.Constraint("Symmetric", 9, 2, 30, 2, -2))
sketch1.addConstraint(Sketcher.Constraint("Symmetric", 7, 1, 32, 2, -2))
sketch1.addConstraint(Sketcher.Constraint("Symmetric", 57, 2, 60, 2, -2))
sketch1.addConstraint(Sketcher.Constraint("Symmetric", 55, 2, 62, 2, -2))
sketch1.addConstraint(Sketcher.Constraint("Symmetric", 53, 2, 64, 2, -2))
sketch1.addConstraint(Sketcher.Constraint("Symmetric", 69, 2, 84, 2, -2))
sketch1.addConstraint(Sketcher.Constraint("Horizontal", 14, 2, 17, 2))
sketch1.addConstraint(Sketcher.Constraint("Horizontal", 16, 2, 19, 2))
sketch1.addConstraint(Sketcher.Constraint("Horizontal", 6, 2, 33, 1))
sketch1.addConstraint(Sketcher.Constraint("Horizontal", 76, 2, 77, 2))
sketch1.addConstraint(Sketcher.Constraint("Horizontal", 67, 2, 86, 2))
sketch1.addConstraint(Sketcher.Constraint("Vertical", 1, 2, 4, 2))
sketch1.addConstraint(Sketcher.Constraint("Vertical", 3, 2, 6, 2))
sketch1.addConstraint(Sketcher.Constraint("Vertical", 15, 2, 50, 2))
sketch1.addConstraint(Sketcher.Constraint("Equal", 12, 16))
sketch1.addConstraint(Sketcher.Constraint("Equal", 50, 53))
sketch1.addConstraint(Sketcher.Constraint("Equal", 40, 55))
sketch1.addConstraint(Sketcher.Constraint("Equal", 81, 1))
sketch1.addConstraint(Sketcher.Constraint("Equal", 83, 3))
sketch1.addConstraint(Sketcher.Constraint("Equal", 48, 5))
sketch1.addConstraint(Sketcher.Constraint("Equal", 11, 15))
sketch1.addConstraint(Sketcher.Constraint("Equal", 79, 52))
sketch1.addConstraint(Sketcher.Constraint("Equal", 39, 54))
sketch1.addConstraint(Sketcher.Constraint("Equal", 51, 56))
sketch1.addConstraint(Sketcher.Constraint("Equal", 87, 58))
sketch1.addConstraint(Sketcher.Constraint("Radius", 59, Q("0.6 in")))
sketch1.addConstraint(Sketcher.Constraint("Radius", 7, Q("0.35 in")))
sketch1.addConstraint(Sketcher.Constraint("DistanceX", 2, 1, 2, 2, Q("0.5 in")))
sketch1.addConstraint(Sketcher.Constraint("DistanceX", 2, 2, -1, 1, Q("2 in")))
sketch1.addConstraint(Sketcher.Constraint("DistanceY", 15, 2, -1, 1, Q("2 in")))
sketch1.addConstraint(Sketcher.Constraint("DistanceX", 57, 2, -1, 1, Q("0.5 in")))
sketch1.addConstraint(Sketcher.Constraint("DistanceY", -1, 1, 5, 2, Q("0.25 in")))
sketch1.addConstraint(Sketcher.Constraint("DistanceX", 52, 2, -1, 1, Q("2.25 in")))
sketch1.addConstraint(Sketcher.Constraint("DistanceX", 0, 2, 0, 1, 21.400132))
pad1 = body.newObject("PartDesign::Pad", "Pad")
pad1.Profile = sketch1
pad1.Length = Q("5 in")

doc.recompute()
